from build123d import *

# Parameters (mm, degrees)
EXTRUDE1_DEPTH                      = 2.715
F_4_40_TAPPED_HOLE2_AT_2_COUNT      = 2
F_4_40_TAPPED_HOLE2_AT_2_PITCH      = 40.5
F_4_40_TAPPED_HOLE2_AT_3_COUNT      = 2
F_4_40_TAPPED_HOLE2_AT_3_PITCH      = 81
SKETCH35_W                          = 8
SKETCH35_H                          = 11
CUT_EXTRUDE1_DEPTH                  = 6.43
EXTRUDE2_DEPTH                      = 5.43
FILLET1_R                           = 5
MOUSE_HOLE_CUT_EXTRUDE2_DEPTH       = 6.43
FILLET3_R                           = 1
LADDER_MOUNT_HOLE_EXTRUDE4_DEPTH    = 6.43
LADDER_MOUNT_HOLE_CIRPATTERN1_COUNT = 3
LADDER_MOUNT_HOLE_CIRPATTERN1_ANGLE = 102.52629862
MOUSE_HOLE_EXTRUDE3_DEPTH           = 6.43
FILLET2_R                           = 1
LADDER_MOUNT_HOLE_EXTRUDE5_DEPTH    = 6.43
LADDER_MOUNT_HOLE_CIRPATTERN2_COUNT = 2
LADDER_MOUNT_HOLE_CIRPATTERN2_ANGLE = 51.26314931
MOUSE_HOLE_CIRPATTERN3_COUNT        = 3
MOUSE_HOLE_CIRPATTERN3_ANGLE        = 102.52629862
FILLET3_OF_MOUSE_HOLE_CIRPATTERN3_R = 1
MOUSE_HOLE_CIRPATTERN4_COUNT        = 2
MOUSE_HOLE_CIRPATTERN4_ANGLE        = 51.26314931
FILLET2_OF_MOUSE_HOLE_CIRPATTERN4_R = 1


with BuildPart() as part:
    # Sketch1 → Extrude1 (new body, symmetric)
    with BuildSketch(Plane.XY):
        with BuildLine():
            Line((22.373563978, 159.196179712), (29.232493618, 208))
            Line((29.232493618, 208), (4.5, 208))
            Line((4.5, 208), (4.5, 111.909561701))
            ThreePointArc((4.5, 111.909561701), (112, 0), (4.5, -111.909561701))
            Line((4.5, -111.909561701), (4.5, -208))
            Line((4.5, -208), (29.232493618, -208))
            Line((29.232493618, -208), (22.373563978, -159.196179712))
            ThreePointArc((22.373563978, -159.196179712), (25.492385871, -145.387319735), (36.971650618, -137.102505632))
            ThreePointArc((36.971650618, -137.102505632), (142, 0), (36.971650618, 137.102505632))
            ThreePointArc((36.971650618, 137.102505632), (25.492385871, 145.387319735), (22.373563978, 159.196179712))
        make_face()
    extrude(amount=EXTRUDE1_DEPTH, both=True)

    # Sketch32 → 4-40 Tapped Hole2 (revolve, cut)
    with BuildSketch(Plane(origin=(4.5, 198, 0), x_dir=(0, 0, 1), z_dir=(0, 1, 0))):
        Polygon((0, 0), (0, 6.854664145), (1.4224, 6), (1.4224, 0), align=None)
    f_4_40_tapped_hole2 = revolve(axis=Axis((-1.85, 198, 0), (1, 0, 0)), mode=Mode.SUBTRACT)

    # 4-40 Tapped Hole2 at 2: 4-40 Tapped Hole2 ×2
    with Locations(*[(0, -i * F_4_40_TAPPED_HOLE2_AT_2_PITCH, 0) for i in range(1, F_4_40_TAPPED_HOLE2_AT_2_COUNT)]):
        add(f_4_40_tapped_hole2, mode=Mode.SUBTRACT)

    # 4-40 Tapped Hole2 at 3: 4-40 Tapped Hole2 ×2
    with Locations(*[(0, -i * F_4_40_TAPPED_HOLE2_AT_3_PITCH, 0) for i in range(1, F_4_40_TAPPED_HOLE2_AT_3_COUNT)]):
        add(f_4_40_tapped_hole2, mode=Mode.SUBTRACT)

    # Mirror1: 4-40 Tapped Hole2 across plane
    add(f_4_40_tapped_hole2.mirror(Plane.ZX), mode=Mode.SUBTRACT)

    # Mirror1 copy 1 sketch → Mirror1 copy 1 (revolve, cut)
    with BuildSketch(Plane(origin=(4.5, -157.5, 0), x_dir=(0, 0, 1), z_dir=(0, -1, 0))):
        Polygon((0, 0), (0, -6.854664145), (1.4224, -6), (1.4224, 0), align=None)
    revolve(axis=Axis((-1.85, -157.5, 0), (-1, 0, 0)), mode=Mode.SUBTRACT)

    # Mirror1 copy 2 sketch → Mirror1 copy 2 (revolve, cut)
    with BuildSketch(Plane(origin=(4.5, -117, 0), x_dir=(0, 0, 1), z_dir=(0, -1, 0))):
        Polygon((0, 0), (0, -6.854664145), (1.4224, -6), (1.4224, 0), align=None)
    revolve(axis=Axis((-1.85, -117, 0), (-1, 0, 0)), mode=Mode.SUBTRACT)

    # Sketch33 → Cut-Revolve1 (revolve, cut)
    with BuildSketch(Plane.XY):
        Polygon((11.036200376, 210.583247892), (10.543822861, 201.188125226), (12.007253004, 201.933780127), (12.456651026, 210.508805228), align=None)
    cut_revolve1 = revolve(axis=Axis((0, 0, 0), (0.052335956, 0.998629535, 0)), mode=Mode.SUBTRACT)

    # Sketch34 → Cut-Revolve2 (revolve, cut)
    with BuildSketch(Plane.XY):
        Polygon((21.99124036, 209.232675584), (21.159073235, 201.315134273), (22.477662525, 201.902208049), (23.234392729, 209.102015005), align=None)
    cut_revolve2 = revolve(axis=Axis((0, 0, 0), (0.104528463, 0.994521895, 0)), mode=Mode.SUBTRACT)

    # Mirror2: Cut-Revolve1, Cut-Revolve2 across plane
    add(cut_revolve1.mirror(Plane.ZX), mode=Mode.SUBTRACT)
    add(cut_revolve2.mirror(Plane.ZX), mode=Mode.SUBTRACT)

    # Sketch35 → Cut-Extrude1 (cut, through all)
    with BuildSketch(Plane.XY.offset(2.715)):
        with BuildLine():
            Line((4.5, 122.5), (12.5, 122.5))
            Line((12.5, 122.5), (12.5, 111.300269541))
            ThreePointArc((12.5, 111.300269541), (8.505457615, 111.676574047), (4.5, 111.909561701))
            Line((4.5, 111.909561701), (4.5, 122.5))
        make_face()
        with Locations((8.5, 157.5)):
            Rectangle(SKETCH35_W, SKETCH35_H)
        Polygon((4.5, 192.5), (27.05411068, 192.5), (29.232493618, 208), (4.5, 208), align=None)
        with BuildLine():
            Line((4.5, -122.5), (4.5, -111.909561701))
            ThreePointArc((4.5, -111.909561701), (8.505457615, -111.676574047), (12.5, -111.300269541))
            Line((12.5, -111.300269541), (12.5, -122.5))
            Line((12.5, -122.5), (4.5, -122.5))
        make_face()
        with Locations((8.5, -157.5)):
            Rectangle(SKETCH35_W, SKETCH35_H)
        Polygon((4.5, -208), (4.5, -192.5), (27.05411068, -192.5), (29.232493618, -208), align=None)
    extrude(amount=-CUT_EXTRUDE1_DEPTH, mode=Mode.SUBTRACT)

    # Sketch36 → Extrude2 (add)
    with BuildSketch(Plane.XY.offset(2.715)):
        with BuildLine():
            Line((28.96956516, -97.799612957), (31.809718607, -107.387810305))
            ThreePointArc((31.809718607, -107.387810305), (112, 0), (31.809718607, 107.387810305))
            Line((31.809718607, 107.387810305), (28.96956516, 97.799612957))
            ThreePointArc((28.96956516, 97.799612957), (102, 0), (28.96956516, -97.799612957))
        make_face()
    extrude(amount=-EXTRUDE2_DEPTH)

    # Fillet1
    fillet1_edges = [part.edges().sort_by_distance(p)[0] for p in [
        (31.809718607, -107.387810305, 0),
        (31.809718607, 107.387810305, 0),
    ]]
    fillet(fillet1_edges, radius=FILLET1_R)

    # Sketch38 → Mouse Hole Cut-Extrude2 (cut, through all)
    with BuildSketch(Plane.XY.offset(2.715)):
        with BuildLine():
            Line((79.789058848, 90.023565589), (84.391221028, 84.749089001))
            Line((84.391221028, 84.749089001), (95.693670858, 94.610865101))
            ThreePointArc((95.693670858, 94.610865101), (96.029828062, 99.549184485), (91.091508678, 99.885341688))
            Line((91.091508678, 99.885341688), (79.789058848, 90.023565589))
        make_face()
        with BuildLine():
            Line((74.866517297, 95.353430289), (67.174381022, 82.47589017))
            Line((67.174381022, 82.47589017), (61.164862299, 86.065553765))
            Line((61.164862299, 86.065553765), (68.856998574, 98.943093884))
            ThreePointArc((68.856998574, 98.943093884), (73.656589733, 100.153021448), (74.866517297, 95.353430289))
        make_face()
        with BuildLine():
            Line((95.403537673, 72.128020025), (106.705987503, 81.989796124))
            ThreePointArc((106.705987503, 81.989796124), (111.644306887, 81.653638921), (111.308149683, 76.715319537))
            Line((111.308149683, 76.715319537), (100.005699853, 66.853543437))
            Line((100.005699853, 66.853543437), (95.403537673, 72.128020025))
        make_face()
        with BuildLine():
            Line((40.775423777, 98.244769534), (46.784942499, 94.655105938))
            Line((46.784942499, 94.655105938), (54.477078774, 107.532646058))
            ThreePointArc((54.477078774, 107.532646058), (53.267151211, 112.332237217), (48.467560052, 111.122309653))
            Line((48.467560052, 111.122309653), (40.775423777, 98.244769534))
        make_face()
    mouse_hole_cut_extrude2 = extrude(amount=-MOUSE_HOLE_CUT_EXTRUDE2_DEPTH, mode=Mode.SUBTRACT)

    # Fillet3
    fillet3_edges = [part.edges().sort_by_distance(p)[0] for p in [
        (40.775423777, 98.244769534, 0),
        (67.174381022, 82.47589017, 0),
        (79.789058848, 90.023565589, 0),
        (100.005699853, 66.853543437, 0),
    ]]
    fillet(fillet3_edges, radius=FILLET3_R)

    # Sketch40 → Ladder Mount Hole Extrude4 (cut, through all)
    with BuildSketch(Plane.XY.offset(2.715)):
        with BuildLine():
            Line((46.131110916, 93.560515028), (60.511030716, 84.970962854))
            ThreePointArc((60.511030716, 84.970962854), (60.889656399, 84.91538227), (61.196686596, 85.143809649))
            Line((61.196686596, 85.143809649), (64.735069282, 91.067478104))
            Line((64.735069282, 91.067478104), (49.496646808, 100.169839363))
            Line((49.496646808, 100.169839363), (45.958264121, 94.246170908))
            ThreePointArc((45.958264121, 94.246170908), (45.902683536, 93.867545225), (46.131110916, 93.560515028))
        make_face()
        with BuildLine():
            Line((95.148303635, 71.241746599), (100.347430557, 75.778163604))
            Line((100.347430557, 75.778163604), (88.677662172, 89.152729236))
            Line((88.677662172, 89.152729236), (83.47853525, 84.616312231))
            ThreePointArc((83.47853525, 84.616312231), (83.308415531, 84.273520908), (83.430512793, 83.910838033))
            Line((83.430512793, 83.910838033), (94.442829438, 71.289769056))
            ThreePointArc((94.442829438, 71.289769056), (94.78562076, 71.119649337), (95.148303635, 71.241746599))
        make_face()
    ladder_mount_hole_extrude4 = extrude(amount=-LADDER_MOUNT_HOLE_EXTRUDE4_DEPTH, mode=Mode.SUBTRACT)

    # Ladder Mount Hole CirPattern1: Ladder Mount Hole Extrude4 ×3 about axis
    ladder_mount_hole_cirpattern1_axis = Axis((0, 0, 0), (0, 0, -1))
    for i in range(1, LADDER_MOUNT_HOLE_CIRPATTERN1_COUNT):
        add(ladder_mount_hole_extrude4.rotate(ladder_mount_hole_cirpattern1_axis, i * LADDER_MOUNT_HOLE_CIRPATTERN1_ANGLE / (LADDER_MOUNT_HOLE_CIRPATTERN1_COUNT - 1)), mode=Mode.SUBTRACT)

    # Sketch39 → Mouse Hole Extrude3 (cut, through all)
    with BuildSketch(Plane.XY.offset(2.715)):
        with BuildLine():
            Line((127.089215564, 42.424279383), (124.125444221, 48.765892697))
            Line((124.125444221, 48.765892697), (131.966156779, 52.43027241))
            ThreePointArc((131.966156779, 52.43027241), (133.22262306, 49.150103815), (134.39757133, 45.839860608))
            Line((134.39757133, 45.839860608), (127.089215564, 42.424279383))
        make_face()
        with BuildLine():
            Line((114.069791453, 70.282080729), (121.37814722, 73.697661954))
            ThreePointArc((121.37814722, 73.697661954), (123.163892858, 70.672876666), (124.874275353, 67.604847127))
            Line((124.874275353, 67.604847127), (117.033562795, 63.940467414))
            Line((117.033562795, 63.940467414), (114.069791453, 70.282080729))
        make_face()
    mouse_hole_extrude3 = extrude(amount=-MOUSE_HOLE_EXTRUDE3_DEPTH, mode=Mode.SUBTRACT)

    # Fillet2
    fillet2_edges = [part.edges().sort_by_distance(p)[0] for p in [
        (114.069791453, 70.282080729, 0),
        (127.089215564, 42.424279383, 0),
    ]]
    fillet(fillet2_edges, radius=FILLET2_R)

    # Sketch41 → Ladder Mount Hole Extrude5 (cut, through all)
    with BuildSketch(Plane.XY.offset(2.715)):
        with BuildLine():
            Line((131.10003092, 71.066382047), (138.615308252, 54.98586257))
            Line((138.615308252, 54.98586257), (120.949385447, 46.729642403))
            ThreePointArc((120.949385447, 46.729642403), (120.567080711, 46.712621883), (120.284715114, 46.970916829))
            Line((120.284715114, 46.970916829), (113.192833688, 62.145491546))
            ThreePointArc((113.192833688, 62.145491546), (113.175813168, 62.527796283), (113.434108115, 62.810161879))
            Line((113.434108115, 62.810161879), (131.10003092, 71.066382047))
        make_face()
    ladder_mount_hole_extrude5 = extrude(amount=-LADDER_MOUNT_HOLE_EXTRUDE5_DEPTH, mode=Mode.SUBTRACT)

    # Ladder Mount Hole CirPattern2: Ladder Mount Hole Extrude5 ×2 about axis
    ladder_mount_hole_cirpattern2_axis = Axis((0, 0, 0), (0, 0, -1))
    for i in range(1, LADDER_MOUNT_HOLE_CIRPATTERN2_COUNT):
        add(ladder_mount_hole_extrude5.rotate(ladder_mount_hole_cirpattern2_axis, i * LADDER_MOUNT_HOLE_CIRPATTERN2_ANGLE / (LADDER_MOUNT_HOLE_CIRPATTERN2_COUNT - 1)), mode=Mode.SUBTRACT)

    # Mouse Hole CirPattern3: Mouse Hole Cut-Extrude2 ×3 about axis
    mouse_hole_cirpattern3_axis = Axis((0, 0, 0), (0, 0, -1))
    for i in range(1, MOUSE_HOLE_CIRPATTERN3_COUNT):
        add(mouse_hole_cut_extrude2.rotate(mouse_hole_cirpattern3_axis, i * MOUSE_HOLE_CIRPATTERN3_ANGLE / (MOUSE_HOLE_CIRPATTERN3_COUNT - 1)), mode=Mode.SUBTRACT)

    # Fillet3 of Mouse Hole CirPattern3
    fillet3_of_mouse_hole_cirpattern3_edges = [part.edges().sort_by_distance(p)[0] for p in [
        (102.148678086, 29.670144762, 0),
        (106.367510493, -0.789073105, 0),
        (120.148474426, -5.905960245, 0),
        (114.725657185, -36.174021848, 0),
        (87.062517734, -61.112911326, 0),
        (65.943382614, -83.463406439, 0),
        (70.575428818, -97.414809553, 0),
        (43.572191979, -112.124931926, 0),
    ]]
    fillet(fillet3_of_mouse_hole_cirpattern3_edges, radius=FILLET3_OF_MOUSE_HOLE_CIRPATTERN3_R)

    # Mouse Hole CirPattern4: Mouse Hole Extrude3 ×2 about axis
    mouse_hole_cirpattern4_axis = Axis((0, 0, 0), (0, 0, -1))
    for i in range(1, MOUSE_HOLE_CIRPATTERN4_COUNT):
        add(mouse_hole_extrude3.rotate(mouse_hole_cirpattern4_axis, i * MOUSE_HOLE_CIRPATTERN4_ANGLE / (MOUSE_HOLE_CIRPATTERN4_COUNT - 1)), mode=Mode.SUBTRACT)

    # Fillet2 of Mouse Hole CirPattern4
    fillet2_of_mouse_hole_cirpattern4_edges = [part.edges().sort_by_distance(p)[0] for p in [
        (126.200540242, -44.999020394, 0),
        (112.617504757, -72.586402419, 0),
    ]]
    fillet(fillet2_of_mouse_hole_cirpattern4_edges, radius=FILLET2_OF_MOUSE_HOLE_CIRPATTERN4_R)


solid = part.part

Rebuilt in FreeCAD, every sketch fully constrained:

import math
import FreeCAD as App
import Part
import Sketcher
from FreeCAD import Vector
Q = App.Units.Quantity


def edges_at(feature, points):
    """Names of the edges that pass closest to the given points."""
    edges = feature.Shape.Edges
    near = lambda p: min(range(len(edges)), key=lambda i: edges[i].distToShape(Part.Vertex(*p))[0])
    return sorted({f"Edge{near(p) + 1}" for p in points})

doc = App.newDocument("Part")
body = doc.addObject("PartDesign::Body", "Body")

# Sketch on XY plane
sketch1 = body.newObject("Sketcher::SketchObject", "Sketch")
sketch1.AttachmentSupport = (doc.getObject("XY_Plane"), [""])
sketch1.MapMode = "FlatFace"
sketch1.addGeometry([
    Part.LineSegment(Vector(22, 159, 0), Vector(29, 208, 0)),  # 0
    Part.LineSegment(Vector(29, 208, 0), Vector(4, 208, 0)),  # 1
    Part.LineSegment(Vector(4, 208, 0), Vector(4, 112, 0)),  # 2
    Part.ArcOfCircle(Part.Circle(Vector(0, 0, 0), Vector(0, 0, 1), 112), math.radians(-88), math.radians(88)),  # 3
    Part.LineSegment(Vector(4, -112, 0), Vector(4, -208, 0)),  # 4
    Part.LineSegment(Vector(4, -208, 0), Vector(29, -208, 0)),  # 5
    Part.LineSegment(Vector(29, -208, 0), Vector(22, -159, 0)),  # 6
    Part.ArcOfCircle(Part.Circle(Vector(42, -156, 0), Vector(0, 0, 1), 20), math.radians(105), math.radians(188)),  # 7
    Part.ArcOfCircle(Part.Circle(Vector(0, 0, 0), Vector(0, 0, 1), 142), math.radians(-75), math.radians(75)),  # 8
    Part.ArcOfCircle(Part.Circle(Vector(42, 156, 0), Vector(0, 0, 1), 20), math.radians(172), math.radians(255)),  # 9
], False)
sketch1.addConstraint([
    Sketcher.Constraint("Coincident", 0, 2, 1, 1),
    Sketcher.Constraint("Coincident", 1, 2, 2, 1),
    Sketcher.Constraint("Coincident", 2, 2, 3, 2),
    Sketcher.Constraint("Coincident", 3, 1, 4, 1),
    Sketcher.Constraint("Coincident", 4, 2, 5, 1),
    Sketcher.Constraint("Coincident", 5, 2, 6, 1),
    Sketcher.Constraint("Tangent", 6, 2, 7, 2),
    Sketcher.Constraint("Tangent", 7, 1, 8, 1),
    Sketcher.Constraint("Tangent", 8, 2, 9, 2),
    Sketcher.Constraint("Tangent", 9, 1, 0, 1),
    Sketcher.Constraint("Horizontal", 1),
    Sketcher.Constraint("Vertical", 2),
    Sketcher.Constraint("Vertical", 4),
    Sketcher.Constraint("Horizontal", 5),
    Sketcher.Constraint("Coincident", 3, 3, -1, 1),
    Sketcher.Constraint("Coincident", 8, 3, -1, 1),
    Sketcher.Constraint("Equal", 7, 9),
    Sketcher.Constraint("Symmetric", 1, 2, 4, 2, -1),
    Sketcher.Constraint("Symmetric", 6, 2, 9, 1, -1),
    Sketcher.Constraint("Radius", 3, Q("112 mm")),
    Sketcher.Constraint("Radius", 7, Q("20 mm")),
    Sketcher.Constraint("Radius", 8, Q("142 mm")),
    Sketcher.Constraint("Angle", 0, Q("82 deg")),
    Sketcher.Constraint("DistanceY", -1, 1, 0, 2, Q("208 mm")),
    Sketcher.Constraint("DistanceX", -1, 1, 1, 2, Q("4.5 mm")),
    Sketcher.Constraint("DistanceX", 1, 2, 1, 1, Q("24.732494 mm")),
])
pad1 = body.newObject("PartDesign::Pad", "Pad")
pad1.Profile = sketch1
pad1.Length = 5.43
pad1.Midplane = True

# Sketch on XZ plane
sketch2 = body.newObject("Sketcher::SketchObject", "Sketch001")
sketch2.AttachmentSupport = (doc.getObject("XZ_Plane"), [""])
sketch2.MapMode = "FlatFace"
sketch2.AttachmentOffset = App.Placement(Vector(0, 0, -198), App.Rotation())
sketch2.addGeometry([
    Part.LineSegment(Vector(11.4, 0, 0), Vector(4.5, 0, 0)),
    Part.LineSegment(Vector(4.5, 0, 0), Vector(4.5, 1.4, 0)),
    Part.LineSegment(Vector(4.5, 1.4, 0), Vector(10.5, 1.4, 0)),
    Part.LineSegment(Vector(10.5, 1.4, 0), Vector(11.4, 0, 0)),
], False)
sketch2.addConstraint([
    Sketcher.Constraint("Coincident", 0, 2, 1, 1),
    Sketcher.Constraint("Coincident", 1, 2, 2, 1),
    Sketcher.Constraint("Coincident", 2, 2, 3, 1),
    Sketcher.Constraint("Coincident", 3, 2, 0, 1),
    Sketcher.Constraint("Horizontal", 0),
    Sketcher.Constraint("Vertical", 1),
    Sketcher.Constraint("Horizontal", 2),
    Sketcher.Constraint("PointOnObject", 0, 2, -1),
    Sketcher.Constraint("DistanceX", 2, 1, 2, 2, Q("6 mm")),
    Sketcher.Constraint("Angle", 3, Q("-59 deg")),
    Sketcher.Constraint("DistanceX", -1, 1, 0, 2, Q("4.5 mm")),
    Sketcher.Constraint("DistanceY", 1, 1, 1, 2, Q("1.4224 mm")),
])
groove = body.newObject("PartDesign::Groove", "Groove")
groove.Profile = sketch2
groove.ReferenceAxis = (sketch2, ["H_Axis"])
groove.Angle = 360
doc.recompute()

linearpattern = body.newObject("PartDesign::LinearPattern", "LinearPattern")
linearpattern.Originals = [groove]
linearpattern.Direction = (doc.getObject("Y_Axis"), [""])
linearpattern.Mode = "offset"
linearpattern.Offset = 40.5
linearpattern.Occurrences = 2
linearpattern.Reversed = True
body.Tip = linearpattern
doc.recompute()

linearpattern2 = body.newObject("PartDesign::LinearPattern", "LinearPattern001")
linearpattern2.Originals = [groove]
linearpattern2.Direction = (doc.getObject("Y_Axis"), [""])
linearpattern2.Mode = "offset"
linearpattern2.Offset = 81
linearpattern2.Occurrences = 2
linearpattern2.Reversed = True
body.Tip = linearpattern2
doc.recompute()

mirrored = body.newObject("PartDesign::Mirrored", "Mirrored")
mirrored.Originals = [groove]
mirrored.MirrorPlane = (doc.getObject("XZ_Plane"), [""])
body.Tip = mirrored

# Sketch on XZ plane
sketch3 = body.newObject("Sketcher::SketchObject", "Sketch002")
sketch3.AttachmentSupport = (doc.getObject("XZ_Plane"), [""])
sketch3.MapMode = "FlatFace"
sketch3.AttachmentOffset = App.Placement(Vector(0, 0, 157.5), App.Rotation())
sketch3.addGeometry([
    Part.LineSegment(Vector(4.5, 0, 0), Vector(11.4, 0, 0)),
    Part.LineSegment(Vector(11.4, 0, 0), Vector(10.5, 1.4, 0)),
    Part.LineSegment(Vector(10.5, 1.4, 0), Vector(4.5, 1.4, 0)),
    Part.LineSegment(Vector(4.5, 1.4, 0), Vector(4.5, 0, 0)),
], False)
sketch3.addConstraint([
    Sketcher.Constraint("Coincident", 0, 2, 1, 1),
    Sketcher.Constraint("Coincident", 1, 2, 2, 1),
    Sketcher.Constraint("Coincident", 2, 2, 3, 1),
    Sketcher.Constraint("Coincident", 3, 2, 0, 1),
    Sketcher.Constraint("Horizontal", 0),
    Sketcher.Constraint("Horizontal", 2),
    Sketcher.Constraint("Vertical", 3),
    Sketcher.Constraint("PointOnObject", 0, 2, -1),
    Sketcher.Constraint("DistanceX", 2, 2, 2, 1, Q("6 mm")),
    Sketcher.Constraint("Angle", 1, Q("121 deg")),
    Sketcher.Constraint("DistanceX", -1, 1, 1, 2, Q("10.5 mm")),
    Sketcher.Constraint("DistanceY", 3, 2, 3, 1, Q("1.4224 mm")),
])
groove2 = body.newObject("PartDesign::Groove", "Groove001")
groove2.Profile = sketch3
groove2.ReferenceAxis = (sketch3, ["H_Axis"])
groove2.Angle = 360

# Sketch on XZ plane
sketch4 = body.newObject("Sketcher::SketchObject", "Sketch003")
sketch4.AttachmentSupport = (doc.getObject("XZ_Plane"), [""])
sketch4.MapMode = "FlatFace"
sketch4.AttachmentOffset = App.Placement(Vector(0, 0, 117), App.Rotation())
sketch4.addGeometry([
    Part.LineSegment(Vector(4.5, 0, 0), Vector(11.4, 0, 0)),
    Part.LineSegment(Vector(11.4, 0, 0), Vector(10.5, 1.4, 0)),
    Part.LineSegment(Vector(10.5, 1.4, 0), Vector(4.5, 1.4, 0)),
    Part.LineSegment(Vector(4.5, 1.4, 0), Vector(4.5, 0, 0)),
], False)
sketch4.addConstraint([
    Sketcher.Constraint("Coincident", 0, 2, 1, 1),
    Sketcher.Constraint("Coincident", 1, 2, 2, 1),
    Sketcher.Constraint("Coincident", 2, 2, 3, 1),
    Sketcher.Constraint("Coincident", 3, 2, 0, 1),
    Sketcher.Constraint("Horizontal", 0),
    Sketcher.Constraint("Horizontal", 2),
    Sketcher.Constraint("Vertical", 3),
    Sketcher.Constraint("PointOnObject", 0, 2, -1),
    Sketcher.Constraint("DistanceX", 2, 2, 2, 1, Q("6 mm")),
    Sketcher.Constraint("Angle", 1, Q("121 deg")),
    Sketcher.Constraint("DistanceX", -1, 1, 1, 2, Q("10.5 mm")),
    Sketcher.Constraint("DistanceY", 3, 2, 3, 1, Q("1.4224 mm")),
])
groove3 = body.newObject("PartDesign::Groove", "Groove002")
groove3.Profile = sketch4
groove3.ReferenceAxis = (sketch4, ["H_Axis"])
groove3.Angle = 360

# Sketch on XY plane
sketch5 = body.newObject("Sketcher::SketchObject", "Sketch004")
sketch5.AttachmentSupport = (doc.getObject("XY_Plane"), [""])
sketch5.MapMode = "FlatFace"
sketch5.addGeometry([
    Part.LineSegment(Vector(11, 210.6, 0), Vector(10.5, 201.2, 0)),
    Part.LineSegment(Vector(10.5, 201.2, 0), Vector(12, 201.9, 0)),
    Part.LineSegment(Vector(12, 201.9, 0), Vector(12.5, 210.5, 0)),
    Part.LineSegment(Vector(12.5, 210.5, 0), Vector(11, 210.6, 0)),
], False)
sketch5.addGeometry(Part.LineSegment(Vector(10.5, 201.2, 0), Vector(11, 210.6, 0)), True)  # axis
sketch5.addConstraint([
    Sketcher.Constraint("Coincident", 0, 2, 1, 1),
    Sketcher.Constraint("Coincident", 1, 2, 2, 1),
    Sketcher.Constraint("Coincident", 2, 2, 3, 1),
    Sketcher.Constraint("Coincident", 3, 2, 0, 1),
    Sketcher.Constraint("Coincident", 4, 1, 0, 2),
    Sketcher.Constraint("Coincident", 4, 2, 3, 2),
    Sketcher.Constraint("Parallel", 0, 2),
    Sketcher.Constraint("Perpendicular", 2, 3),
    Sketcher.Constraint("Angle", 0, Q("-93 deg")),
    Sketcher.Constraint("Angle", 1, Q("27 deg")),
    Sketcher.Constraint("Distance", 3, Q("1.4224 mm")),
    Sketcher.Constraint("DistanceX", -1, 1, 3, 2, Q("11.0362 mm")),
    Sketcher.Constraint("DistanceX", 1, 2, 2, 2, Q("0.449398 mm")),
    Sketcher.Constraint("DistanceY", -1, 1, 1, 2, Q("201.93378 mm")),
])
groove4 = body.newObject("PartDesign::Groove", "Groove003")
groove4.Profile = sketch5
groove4.ReferenceAxis = (sketch5, ["Axis0"])
groove4.Angle = 360

# Sketch on XY plane
sketch6 = body.newObject("Sketcher::SketchObject", "Sketch005")
sketch6.AttachmentSupport = (doc.getObject("XY_Plane"), [""])
sketch6.MapMode = "FlatFace"
sketch6.addGeometry([
    Part.LineSegment(Vector(22, 209.2, 0), Vector(21.2, 201.3, 0)),
    Part.LineSegment(Vector(21.2, 201.3, 0), Vector(22.5, 201.9, 0)),
    Part.LineSegment(Vector(22.5, 201.9, 0), Vector(23.2, 209.1, 0)),
    Part.LineSegment(Vector(23.2, 209.1, 0), Vector(22, 209.2, 0)),
], False)
sketch6.addGeometry(Part.LineSegment(Vector(21.2, 201.3, 0), Vector(22, 209.2, 0)), True)  # axis
sketch6.addConstraint([
    Sketcher.Constraint("Coincident", 0, 2, 1, 1),
    Sketcher.Constraint("Coincident", 1, 2, 2, 1),
    Sketcher.Constraint("Coincident", 2, 2, 3, 1),
    Sketcher.Constraint("Coincident", 3, 2, 0, 1),
    Sketcher.Constraint("Coincident", 4, 1, 0, 2),
    Sketcher.Constraint("Coincident", 4, 2, 3, 2),
    Sketcher.Constraint("Parallel", 0, 2),
    Sketcher.Constraint("Perpendicular", 2, 3),
    Sketcher.Constraint("Angle", 0, Q("-96 deg")),
    Sketcher.Constraint("Angle", 1, Q("24 deg")),
    Sketcher.Constraint("Distance", 3, Q("1.25 mm")),
    Sketcher.Constraint("DistanceY", -1, 1, 1, 2, Q("201.902208 mm")),
    Sketcher.Constraint("DistanceX", -1, 1, 3, 2, Q("21.99124 mm")),
    Sketcher.Constraint("DistanceX", 1, 2, 2, 2, Q("0.75673 mm")),
])
groove5 = body.newObject("PartDesign::Groove", "Groove004")
groove5.Profile = sketch6
groove5.ReferenceAxis = (sketch6, ["Axis0"])
groove5.Angle = 360
doc.recompute()

mirrored2 = body.newObject("PartDesign::Mirrored", "Mirrored001")
mirrored2.Originals = [groove4, groove5]
mirrored2.MirrorPlane = (doc.getObject("XZ_Plane"), [""])
body.Tip = mirrored2

# Sketch on XY plane
sketch7 = body.newObject("Sketcher::SketchObject", "Sketch006")
sketch7.AttachmentSupport = (doc.getObject("XY_Plane"), [""])
sketch7.MapMode = "FlatFace"
sketch7.AttachmentOffset = App.Placement(Vector(0, 0, 2.715), App.Rotation())
sketch7.addGeometry([
    Part.LineSegment(Vector(12, 122, 0), Vector(4, 122, 0)),  # 0
    Part.LineSegment(Vector(4, 122, 0), Vector(4, 112, 0)),  # 1
    Part.ArcOfCircle(Part.Circle(Vector(0, 0, 0), Vector(0, 0, 1), 112), math.radians(83.59), math.radians(87.7)),  # 2
    Part.LineSegment(Vector(12, 111, 0), Vector(12, 122, 0)),  # 3
    Part.LineSegment(Vector(4, 163, 0), Vector(4, 152, 0)),  # 4
    Part.LineSegment(Vector(4, 152, 0), Vector(12, 152, 0)),  # 5
    Part.LineSegment(Vector(12, 152, 0), Vector(12, 163, 0)),  # 6
    Part.LineSegment(Vector(12, 163, 0), Vector(4, 163, 0)),  # 7
    Part.LineSegment(Vector(4, 192, 0), Vector(27, 192, 0)),  # 8
    Part.LineSegment(Vector(27, 192, 0), Vector(29, 208, 0)),  # 9
    Part.LineSegment(Vector(29, 208, 0), Vector(4, 208, 0)),  # 10
    Part.LineSegment(Vector(4, 208, 0), Vector(4, 192, 0)),  # 11
    Part.LineSegment(Vector(4, -112, 0), Vector(4, -122, 0)),  # 12
    Part.LineSegment(Vector(4, -122, 0), Vector(12, -122, 0)),  # 13
    Part.LineSegment(Vector(12, -122, 0), Vector(12, -111, 0)),  # 14
    Part.ArcOfCircle(Part.Circle(Vector(0, 0, 0), Vector(0, 0, 1), 112), math.radians(-87.7), math.radians(-83.59)),  # 15
    Part.LineSegment(Vector(4, -152, 0), Vector(4, -163, 0)),  # 16
    Part.LineSegment(Vector(4, -163, 0), Vector(12, -163, 0)),  # 17
    Part.LineSegment(Vector(12, -163, 0), Vector(12, -152, 0)),  # 18
    Part.LineSegment(Vector(12, -152, 0), Vector(4, -152, 0)),  # 19
    Part.LineSegment(Vector(4, -192, 0), Vector(4, -208, 0)),  # 20
    Part.LineSegment(Vector(4, -208, 0), Vector(29, -208, 0)),  # 21
    Part.LineSegment(Vector(29, -208, 0), Vector(27, -192, 0)),  # 22
    Part.LineSegment(Vector(27, -192, 0), Vector(4, -192, 0)),  # 23
], False)
sketch7.addConstraint([
    Sketcher.Constraint("Coincident", 0, 2, 1, 1),
    Sketcher.Constraint("Coincident", 1, 2, 2, 2),
    Sketcher.Constraint("Coincident", 2, 1, 3, 1),
    Sketcher.Constraint("Coincident", 3, 2, 0, 1),
    Sketcher.Constraint("Coincident", 4, 2, 5, 1),
    Sketcher.Constraint("Coincident", 5, 2, 6, 1),
    Sketcher.Constraint("Coincident", 6, 2, 7, 1),
    Sketcher.Constraint("Coincident", 7, 2, 4, 1),
    Sketcher.Constraint("Coincident", 8, 2, 9, 1),
    Sketcher.Constraint("Coincident", 9, 2, 10, 1),
    Sketcher.Constraint("Coincident", 10, 2, 11, 1),
    Sketcher.Constraint("Coincident", 11, 2, 8, 1),
    Sketcher.Constraint("Coincident", 12, 2, 13, 1),
    Sketcher.Constraint("Coincident", 13, 2, 14, 1),
    Sketcher.Constraint("Coincident", 14, 2, 15, 2),
    Sketcher.Constraint("Coincident", 15, 1, 12, 1),
    Sketcher.Constraint("Coincident", 16, 2, 17, 1),
    Sketcher.Constraint("Coincident", 17, 2, 18, 1),
    Sketcher.Constraint("Coincident", 18, 2, 19, 1),
    Sketcher.Constraint("Coincident", 19, 2, 16, 1),
    Sketcher.Constraint("Coincident", 20, 2, 21, 1),
    Sketcher.Constraint("Coincident", 21, 2, 22, 1),
    Sketcher.Constraint("Coincident", 22, 2, 23, 1),
    Sketcher.Constraint("Coincident", 23, 2, 20, 1),
    Sketcher.Constraint("Horizontal", 0),
    Sketcher.Constraint("Vertical", 1),
    Sketcher.Constraint("Vertical", 3),
    Sketcher.Constraint("Vertical", 4),
    Sketcher.Constraint("Horizontal", 5),
    Sketcher.Constraint("Vertical", 6),
    Sketcher.Constraint("Horizontal", 7),
    Sketcher.Constraint("Horizontal", 8),
    Sketcher.Constraint("Horizontal", 10),
    Sketcher.Constraint("Vertical", 11),
    Sketcher.Constraint("Vertical", 12),
    Sketcher.Constraint("Horizontal", 13),
    Sketcher.Constraint("Vertical", 14),
    Sketcher.Constraint("Vertical", 16),
    Sketcher.Constraint("Horizontal", 17),
    Sketcher.Constraint("Vertical", 18),
    Sketcher.Constraint("Horizontal", 19),
    Sketcher.Constraint("Vertical", 20),
    Sketcher.Constraint("Horizontal", 21),
    Sketcher.Constraint("Horizontal", 23),
    Sketcher.Constraint("Coincident", 2, 3, -1, 1),
    Sketcher.Constraint("Coincident", 15, 3, -1, 1),
    Sketcher.Constraint("Equal", 2, 15),
    Sketcher.Constraint("Symmetric", 0, 2, 12, 2, -1),
    Sketcher.Constraint("Symmetric", 7, 2, 16, 2, -1),
    Sketcher.Constraint("Symmetric", 5, 2, 18, 2, -1),
    Sketcher.Constraint("Symmetric", 10, 2, 20, 2, -1),
    Sketcher.Constraint("Symmetric", 8, 2, 22, 2, -1),
    Sketcher.Constraint("Vertical", 1, 2, 4, 2),
    Sketcher.Constraint("Vertical", 3, 2, 5, 2),
    Sketcher.Constraint("Vertical", 7, 2, 10, 2),
    Sketcher.Constraint("Vertical", 6, 2, 13, 2),
    Sketcher.Constraint("Vertical", 9, 2, 21, 2),
    Sketcher.Constraint("Radius", 2, Q("111.999999 mm")),
    Sketcher.Constraint("DistanceX", 0, 2, 0, 1, Q("8 mm")),
    Sketcher.Constraint("DistanceY", 4, 2, 4, 1, Q("11 mm")),
    Sketcher.Constraint("Angle", 9, Q("82 deg")),
    Sketcher.Constraint("DistanceY", 11, 2, 11, 1, Q("15.5 mm")),
    Sketcher.Constraint("DistanceY", -1, 1, 4, 2, Q("152 mm")),
    Sketcher.Constraint("DistanceY", -1, 1, 9, 2, Q("208 mm")),
    Sketcher.Constraint("DistanceY", 3, 2, 8, 2, Q("70 mm")),
    Sketcher.Constraint("DistanceX", -1, 1, 0, 2, Q("4.5 mm")),
    Sketcher.Constraint("DistanceX", 8, 1, 8, 2, Q("22.554111 mm")),
])
pocket1 = body.newObject("PartDesign::Pocket", "Pocket")
pocket1.Profile = sketch7
pocket1.Type = "ThroughAll"

# Sketch on XY plane
sketch8 = body.newObject("Sketcher::SketchObject", "Sketch007")
sketch8.AttachmentSupport = (doc.getObject("XY_Plane"), [""])
sketch8.MapMode = "FlatFace"
sketch8.AttachmentOffset = App.Placement(Vector(0, 0, 2.715), App.Rotation())
sketch8.addGeometry([
    Part.LineSegment(Vector(29, -98, 0), Vector(32, -107, 0)),
    Part.ArcOfCircle(Part.Circle(Vector(0, 0, 0), Vector(0, 0, 1), 112), math.radians(-73), math.radians(73)),
    Part.LineSegment(Vector(32, 107, 0), Vector(29, 98, 0)),
    Part.ArcOfCircle(Part.Circle(Vector(0, 0, 0), Vector(0, 0, 1), 102), math.radians(-73), math.radians(73)),
], False)
sketch8.addConstraint([
    Sketcher.Constraint("Coincident", 0, 2, 1, 1),
    Sketcher.Constraint("Coincident", 1, 2, 2, 1),
    Sketcher.Constraint("Coincident", 2, 2, 3, 2),
    Sketcher.Constraint("Coincident", 3, 1, 0, 1),
    Sketcher.Constraint("Coincident", 1, 3, -1, 1),
    Sketcher.Constraint("Coincident", 3, 3, -1, 1),
    Sketcher.Constraint("Vertical", 0, 2, 1, 2),
    Sketcher.Constraint("Vertical", 2, 2, 3, 1),
    Sketcher.Constraint("Radius", 1, Q("112 mm")),
    Sketcher.Constraint("Radius", 3, Q("102 mm")),
    Sketcher.Constraint("Angle", 0, Q("-73.5 deg")),
    Sketcher.Constraint("DistanceX", -1, 1, 0, 2, Q("31.809719 mm")),
])
pad2 = body.newObject("PartDesign::Pad", "Pad001")
pad2.Profile = sketch8
pad2.Length = 5.43
pad2.Reversed = True
doc.recompute()

fillet = body.newObject("PartDesign::Fillet", "Fillet")
fillet.Base = (pad2, edges_at(pad2, [(31.81, -107.388, 0), (31.81, 107.388, 0)]))
fillet.Radius = 5

# Sketch on XY plane
sketch9 = body.newObject("Sketcher::SketchObject", "Sketch008")
sketch9.AttachmentSupport = (doc.getObject("XY_Plane"), [""])
sketch9.MapMode = "FlatFace"
sketch9.AttachmentOffset = App.Placement(Vector(0, 0, 2.715), App.Rotation())
sketch9.addGeometry([
    Part.LineSegment(Vector(79.8, 90, 0), Vector(84.4, 84.7, 0)),  # 0
    Part.LineSegment(Vector(84.4, 84.7, 0), Vector(95.7, 94.6, 0)),  # 1
    Part.ArcOfCircle(Part.Circle(Vector(93.4, 97.2, 0), Vector(0, 0, 1), 3.5), math.radians(-49), math.radians(131)),  # 2
    Part.LineSegment(Vector(91.1, 99.9, 0), Vector(79.8, 90, 0)),  # 3
    Part.LineSegment(Vector(67.2, 82.5, 0), Vector(74.9, 95.4, 0)),  # 4
    Part.ArcOfCircle(Part.Circle(Vector(71.9, 97.1, 0), Vector(0, 0, 1), 3.5), math.radians(-31), math.radians(149)),  # 5
    Part.LineSegment(Vector(68.9, 98.9, 0), Vector(61.2, 86.1, 0)),  # 6
    Part.LineSegment(Vector(61.2, 86.1, 0), Vector(67.2, 82.5, 0)),  # 7
    Part.LineSegment(Vector(106.7, 82, 0), Vector(95.4, 72.1, 0)),  # 8
    Part.LineSegment(Vector(95.4, 72.1, 0), Vector(100, 66.9, 0)),  # 9
    Part.LineSegment(Vector(100, 66.9, 0), Vector(111.3, 76.7, 0)),  # 10
    Part.ArcOfCircle(Part.Circle(Vector(109, 79.4, 0), Vector(0, 0, 1), 3.5), math.radians(-49), math.radians(131)),  # 11
    Part.LineSegment(Vector(40.8, 98.2, 0), Vector(46.8, 94.7, 0)),  # 12
    Part.LineSegment(Vector(46.8, 94.7, 0), Vector(54.5, 107.5, 0)),  # 13
    Part.ArcOfCircle(Part.Circle(Vector(51.5, 109.3, 0), Vector(0, 0, 1), 3.5), math.radians(-31), math.radians(149)),  # 14
    Part.LineSegment(Vector(48.5, 111.1, 0), Vector(40.8, 98.2, 0)),  # 15
], False)
sketch9.addConstraint([
    Sketcher.Constraint("Coincident", 0, 2, 1, 1),
    Sketcher.Constraint("Tangent", 1, 2, 2, 1),
    Sketcher.Constraint("Tangent", 2, 2, 3, 1),
    Sketcher.Constraint("Coincident", 3, 2, 0, 1),
    Sketcher.Constraint("Tangent", 4, 2, 5, 1),
    Sketcher.Constraint("Tangent", 5, 2, 6, 1),
    Sketcher.Constraint("Coincident", 6, 2, 7, 1),
    Sketcher.Constraint("Coincident", 7, 2, 4, 1),
    Sketcher.Constraint("Coincident", 8, 2, 9, 1),
    Sketcher.Constraint("Coincident", 9, 2, 10, 1),
    Sketcher.Constraint("Tangent", 10, 2, 11, 1),
    Sketcher.Constraint("Tangent", 11, 2, 8, 1),
    Sketcher.Constraint("Coincident", 12, 2, 13, 1),
    Sketcher.Constraint("Tangent", 13, 2, 14, 1),
    Sketcher.Constraint("Tangent", 14, 2, 15, 1),
    Sketcher.Constraint("Coincident", 15, 2, 12, 1),
    Sketcher.Constraint("Equal", 2, 5),
    Sketcher.Constraint("Equal", 5, 11),
    Sketcher.Constraint("Equal", 11, 14),
    Sketcher.Constraint("Perpendicular", 0, 1),
    Sketcher.Constraint("Parallel", 1, 3),
    Sketcher.Constraint("Parallel", 4, 6),
    Sketcher.Constraint("Perpendicular", 6, 7),
    Sketcher.Constraint("Parallel", 3, 8),
    Sketcher.Constraint("Perpendicular", 8, 9),
    Sketcher.Constraint("Perpendicular", 9, 10),
    Sketcher.Constraint("Parallel", 7, 12),
    Sketcher.Constraint("Perpendicular", 12, 13),
    Sketcher.Constraint("Parallel", 13, 15),
    Sketcher.Constraint("Equal", 3, 4),
    Sketcher.Constraint("Equal", 6, 8),
    Sketcher.Constraint("Equal", 10, 13),
    Sketcher.Constraint("Radius", 2, Q("3.5 mm")),
    Sketcher.Constraint("Distance", 1, Q("15 mm")),
    Sketcher.Constraint("DistanceX", -1, 1, 5, 2, Q("68.856999 mm")),
    Sketcher.Constraint("DistanceX", -1, 1, 9, 2, Q("100.0057 mm")),
    Sketcher.Constraint("DistanceX", 14, 3, 0, 2, Q("32.918902 mm")),
    Sketcher.Constraint("DistanceX", 5, 3, 3, 2, Q("7.927301 mm")),
    Sketcher.Constraint("DistanceY", 3, 2, 1, 2, Q("4.5873 mm")),
    Sketcher.Constraint("DistanceX", -1, 1, 2, 3, Q("93.39259 mm")),
    Sketcher.Constraint("DistanceY", -1, 1, 0, 2, Q("84.749089 mm")),
    Sketcher.Constraint("DistanceY", -1, 1, 4, 2, Q("95.35343 mm")),
    Sketcher.Constraint("DistanceY", -1, 1, 8, 2, Q("72.12802 mm")),
    Sketcher.Constraint("DistanceY", -1, 1, 14, 2, Q("111.12231 mm")),
])
pocket2 = body.newObject("PartDesign::Pocket", "Pocket001")
pocket2.Profile = sketch9
pocket2.Type = "ThroughAll"
doc.recompute()

fillet2 = body.newObject("PartDesign::Fillet", "Fillet001")
fillet2.Base = (pocket2, edges_at(pocket2, [
    (40.775, 98.245, 0),
    (67.174, 82.476, 0),
    (79.789, 90.024, 0),
    (100.006, 66.854, 0),
]))
fillet2.Radius = 1

# Sketch on XY plane
sketch10 = body.newObject("Sketcher::SketchObject", "Sketch009")
sketch10.AttachmentSupport = (doc.getObject("XY_Plane"), [""])
sketch10.MapMode = "FlatFace"
sketch10.AttachmentOffset = App.Placement(Vector(0, 0, 2.715), App.Rotation())
sketch10.addGeometry([
    Part.LineSegment(Vector(46.13, 93.56, 0), Vector(60.51, 84.97, 0)),  # 0
    Part.ArcOfCircle(Part.Circle(Vector(60.77, 85.4, 0), Vector(0, 0, 1), 0.5), math.radians(-121), math.radians(-31)),  # 1
    Part.LineSegment(Vector(61.2, 85.14, 0), Vector(64.74, 91.07, 0)),  # 2
    Part.LineSegment(Vector(64.74, 91.07, 0), Vector(49.5, 100.17, 0)),  # 3
    Part.LineSegment(Vector(49.5, 100.17, 0), Vector(45.96, 94.25, 0)),  # 4
    Part.ArcOfCircle(Part.Circle(Vector(46.39, 93.99, 0), Vector(0, 0, 1), 0.5), math.radians(149), math.radians(239)),  # 5
    Part.LineSegment(Vector(95.15, 71.24, 0), Vector(100.35, 75.78, 0)),  # 6
    Part.LineSegment(Vector(100.35, 75.78, 0), Vector(88.68, 89.15, 0)),  # 7
    Part.LineSegment(Vector(88.68, 89.15, 0), Vector(83.48, 84.62, 0)),  # 8
    Part.ArcOfCircle(Part.Circle(Vector(83.81, 84.24, 0), Vector(0, 0, 1), 0.5), math.radians(131), math.radians(221)),  # 9
    Part.LineSegment(Vector(83.43, 83.91, 0), Vector(94.44, 71.29, 0)),  # 10
    Part.ArcOfCircle(Part.Circle(Vector(94.82, 71.62, 0), Vector(0, 0, 1), 0.5), math.radians(-139), math.radians(-49)),  # 11
], False)
sketch10.addConstraint([
    Sketcher.Constraint("Tangent", 0, 2, 1, 1),
    Sketcher.Constraint("Tangent", 1, 2, 2, 1),
    Sketcher.Constraint("Coincident", 2, 2, 3, 1),
    Sketcher.Constraint("Coincident", 3, 2, 4, 1),
    Sketcher.Constraint("Tangent", 4, 2, 5, 1),
    Sketcher.Constraint("Tangent", 5, 2, 0, 1),
    Sketcher.Constraint("Coincident", 6, 2, 7, 1),
    Sketcher.Constraint("Coincident", 7, 2, 8, 1),
    Sketcher.Constraint("Tangent", 8, 2, 9, 1),
    Sketcher.Constraint("Tangent", 9, 2, 10, 1),
    Sketcher.Constraint("Tangent", 10, 2, 11, 1),
    Sketcher.Constraint("Tangent", 11, 2, 6, 1),
    Sketcher.Constraint("Equal", 1, 5),
    Sketcher.Constraint("Equal", 5, 9),
    Sketcher.Constraint("Equal", 9, 11),
    Sketcher.Constraint("Perpendicular", 0, 2),
    Sketcher.Constraint("Perpendicular", 2, 3),
    Sketcher.Constraint("Perpendicular", 3, 4),
    Sketcher.Constraint("Perpendicular", 6, 7),
    Sketcher.Constraint("Perpendicular", 7, 8),
    Sketcher.Constraint("Perpendicular", 8, 10),
    Sketcher.Constraint("Equal", 4, 6),
    Sketcher.Constraint("Equal", 3, 7),
    Sketcher.Constraint("Radius", 1, Q("0.5 mm")),
    Sketcher.Constraint("Distance", 2, Q("6.9 mm")),
    Sketcher.Constraint("Distance", 0, Q("16.75 mm")),
    Sketcher.Constraint("DistanceY", 9, 3, 0, 2, Q("0.731399 mm")),
    Sketcher.Constraint("DistanceY", 1, 3, 5, 2, Q("8.160301 mm")),
    Sketcher.Constraint("DistanceY", 6, 2, 9, 3, Q("8.4614 mm")),
    Sketcher.Constraint("DistanceX", -1, 1, 9, 3, Q("83.807261 mm")),
    Sketcher.Constraint("DistanceX", -1, 1, 0, 2, Q("60.511031 mm")),
    Sketcher.Constraint("DistanceY", -1, 1, 1, 2, Q("85.14381 mm")),
])
pocket3 = body.newObject("PartDesign::Pocket", "Pocket002")
pocket3.Profile = sketch10
pocket3.Type = "ThroughAll"
doc.recompute()

polarpattern = body.newObject("PartDesign::PolarPattern", "PolarPattern")
polarpattern.Originals = [pocket3]
polarpattern.Axis = (doc.getObject("Z_Axis"), [""])
polarpattern.Angle = 102.526299
polarpattern.Occurrences = 3
polarpattern.Reversed = True
body.Tip = polarpattern

# Sketch on XY plane
sketch11 = body.newObject("Sketcher::SketchObject", "Sketch010")
sketch11.AttachmentSupport = (doc.getObject("XY_Plane"), [""])
sketch11.MapMode = "FlatFace"
sketch11.AttachmentOffset = App.Placement(Vector(0, 0, 2.715), App.Rotation())
sketch11.addGeometry([
    Part.LineSegment(Vector(124, 49, 0), Vector(127, 42, 0)),  # 0
    Part.LineSegment(Vector(127, 42, 0), Vector(134, 46, 0)),  # 1
    Part.ArcOfCircle(Part.Circle(Vector(0, 0, 0), Vector(0, 0, 1), 142), math.radians(18.83), math.radians(21.67)),  # 2
    Part.LineSegment(Vector(132, 52, 0), Vector(124, 49, 0)),  # 3
    Part.LineSegment(Vector(121, 74, 0), Vector(114, 70, 0)),  # 4
    Part.LineSegment(Vector(114, 70, 0), Vector(117, 64, 0)),  # 5
    Part.LineSegment(Vector(117, 64, 0), Vector(125, 68, 0)),  # 6
    Part.ArcOfCircle(Part.Circle(Vector(0, 0, 0), Vector(0, 0, 1), 142), math.radians(28.43), math.radians(31.27)),  # 7
], False)
sketch11.addConstraint([
    Sketcher.Constraint("Coincident", 0, 2, 1, 1),
    Sketcher.Constraint("Coincident", 1, 2, 2, 1),
    Sketcher.Constraint("Coincident", 2, 2, 3, 1),
    Sketcher.Constraint("Coincident", 3, 2, 0, 1),
    Sketcher.Constraint("Coincident", 4, 2, 5, 1),
    Sketcher.Constraint("Coincident", 5, 2, 6, 1),
    Sketcher.Constraint("Coincident", 6, 2, 7, 1),
    Sketcher.Constraint("Coincident", 7, 2, 4, 1),
    Sketcher.Constraint("Coincident", 2, 3, -1, 1),
    Sketcher.Constraint("Coincident", 7, 3, -1, 1),
    Sketcher.Constraint("Equal", 2, 7),
    Sketcher.Constraint("Perpendicular", 0, 1),
    Sketcher.Constraint("Parallel", 1, 3),
    Sketcher.Constraint("Parallel", 3, 4),
    Sketcher.Constraint("Perpendicular", 4, 5),
    Sketcher.Constraint("Perpendicular", 5, 6),
    Sketcher.Constraint("Equal", 1, 4),
    Sketcher.Constraint("Equal", 0, 5),
    Sketcher.Constraint("Equal", 3, 6),
    Sketcher.Constraint("Radius", 2, Q("142 mm")),
    Sketcher.Constraint("Distance", 0, Q("7 mm")),
    Sketcher.Constraint("DistanceY", 0, 2, 4, 2, Q("27.857801 mm")),
    Sketcher.Constraint("Distance", 1, Q("8.06711 mm")),
    Sketcher.Constraint("DistanceY", -1, 1, 0, 2, Q("42.424279 mm")),
])
pocket4 = body.newObject("PartDesign::Pocket", "Pocket003")
pocket4.Profile = sketch11
pocket4.Type = "ThroughAll"
doc.recompute()

fillet3 = body.newObject("PartDesign::Fillet", "Fillet002")
fillet3.Base = (pocket4, edges_at(pocket4, [(114.07, 70.282, 0), (127.089, 42.424, 0)]))
fillet3.Radius = 1

# Sketch on XY plane
sketch12 = body.newObject("Sketcher::SketchObject", "Sketch011")
sketch12.AttachmentSupport = (doc.getObject("XY_Plane"), [""])
sketch12.MapMode = "FlatFace"
sketch12.AttachmentOffset = App.Placement(Vector(0, 0, 2.715), App.Rotation())
sketch12.addGeometry([
    Part.LineSegment(Vector(138.62, 54.99, 0), Vector(131.1, 71.07, 0)),  # 0
    Part.LineSegment(Vector(131.1, 71.07, 0), Vector(113.43, 62.81, 0)),  # 1
    Part.ArcOfCircle(Part.Circle(Vector(113.65, 62.36, 0), Vector(0, 0, 1), 0.5), math.radians(115), math.radians(205)),  # 2
    Part.LineSegment(Vector(113.19, 62.15, 0), Vector(120.28, 46.97, 0)),  # 3
    Part.ArcOfCircle(Part.Circle(Vector(120.74, 47.18, 0), Vector(0, 0, 1), 0.5), math.radians(-155), math.radians(-65)),  # 4
    Part.LineSegment(Vector(120.95, 46.73, 0), Vector(138.62, 54.99, 0)),  # 5
], False)
sketch12.addConstraint([
    Sketcher.Constraint("Coincident", 0, 2, 1, 1),
    Sketcher.Constraint("Tangent", 1, 2, 2, 1),
    Sketcher.Constraint("Tangent", 2, 2, 3, 1),
    Sketcher.Constraint("Tangent", 3, 2, 4, 1),
    Sketcher.Constraint("Tangent", 4, 2, 5, 1),
    Sketcher.Constraint("Coincident", 5, 2, 0, 1),
    Sketcher.Constraint("Equal", 2, 4),
    Sketcher.Constraint("Perpendicular", 0, 1),
    Sketcher.Constraint("Perpendicular", 1, 3),
    Sketcher.Constraint("Perpendicular", 3, 5),
    Sketcher.Constraint("Radius", 2, Q("0.5 mm")),
    Sketcher.Constraint("Distance", 1, Q("19.5 mm")),
    Sketcher.Constraint("Distance", 0, Q("17.75 mm")),
    Sketcher.Constraint("DistanceY", -1, 1, 2, 3, Q("62.357189 mm")),
    Sketcher.Constraint("DistanceX", -1, 1, 0, 2, Q("131.100031 mm")),
    Sketcher.Constraint("DistanceX", -1, 1, 1, 2, Q("113.434108 mm")),
])
pocket5 = body.newObject("PartDesign::Pocket", "Pocket004")
pocket5.Profile = sketch12
pocket5.Type = "ThroughAll"
doc.recompute()

polarpattern2 = body.newObject("PartDesign::PolarPattern", "PolarPattern001")
polarpattern2.Originals = [pocket5]
polarpattern2.Axis = (doc.getObject("Z_Axis"), [""])
polarpattern2.Angle = 51.263149
polarpattern2.Occurrences = 2
polarpattern2.Reversed = True
body.Tip = polarpattern2
doc.recompute()

polarpattern3 = body.newObject("PartDesign::PolarPattern", "PolarPattern002")
polarpattern3.Originals = [pocket2]
polarpattern3.Axis = (doc.getObject("Z_Axis"), [""])
polarpattern3.Angle = 102.526299
polarpattern3.Occurrences = 3
polarpattern3.Reversed = True
body.Tip = polarpattern3
doc.recompute()

fillet4 = body.newObject("PartDesign::Fillet", "Fillet003")
fillet4.Base = (polarpattern3, edges_at(polarpattern3, [
    (102.149, 29.67, 0),
    (106.368, -0.789, 0),
    (120.148, -5.906, 0),
    (114.726, -36.174, 0),
    (87.063, -61.113, 0),
    (65.943, -83.463, 0),
    (70.575, -97.415, 0),
    (43.572, -112.125, 0),
]))
fillet4.Radius = 1
doc.recompute()

polarpattern4 = body.newObject("PartDesign::PolarPattern", "PolarPattern003")
polarpattern4.Originals = [pocket4]
polarpattern4.Axis = (doc.getObject("Z_Axis"), [""])
polarpattern4.Angle = 51.263149
polarpattern4.Occurrences = 2
polarpattern4.Reversed = True
body.Tip = polarpattern4
doc.recompute()

fillet5 = body.newObject("PartDesign::Fillet", "Fillet004")
fillet5.Base = (polarpattern4, edges_at(polarpattern4, [(126.201, -44.999, 0), (112.618, -72.586, 0)]))
fillet5.Radius = 1

doc.recompute()
